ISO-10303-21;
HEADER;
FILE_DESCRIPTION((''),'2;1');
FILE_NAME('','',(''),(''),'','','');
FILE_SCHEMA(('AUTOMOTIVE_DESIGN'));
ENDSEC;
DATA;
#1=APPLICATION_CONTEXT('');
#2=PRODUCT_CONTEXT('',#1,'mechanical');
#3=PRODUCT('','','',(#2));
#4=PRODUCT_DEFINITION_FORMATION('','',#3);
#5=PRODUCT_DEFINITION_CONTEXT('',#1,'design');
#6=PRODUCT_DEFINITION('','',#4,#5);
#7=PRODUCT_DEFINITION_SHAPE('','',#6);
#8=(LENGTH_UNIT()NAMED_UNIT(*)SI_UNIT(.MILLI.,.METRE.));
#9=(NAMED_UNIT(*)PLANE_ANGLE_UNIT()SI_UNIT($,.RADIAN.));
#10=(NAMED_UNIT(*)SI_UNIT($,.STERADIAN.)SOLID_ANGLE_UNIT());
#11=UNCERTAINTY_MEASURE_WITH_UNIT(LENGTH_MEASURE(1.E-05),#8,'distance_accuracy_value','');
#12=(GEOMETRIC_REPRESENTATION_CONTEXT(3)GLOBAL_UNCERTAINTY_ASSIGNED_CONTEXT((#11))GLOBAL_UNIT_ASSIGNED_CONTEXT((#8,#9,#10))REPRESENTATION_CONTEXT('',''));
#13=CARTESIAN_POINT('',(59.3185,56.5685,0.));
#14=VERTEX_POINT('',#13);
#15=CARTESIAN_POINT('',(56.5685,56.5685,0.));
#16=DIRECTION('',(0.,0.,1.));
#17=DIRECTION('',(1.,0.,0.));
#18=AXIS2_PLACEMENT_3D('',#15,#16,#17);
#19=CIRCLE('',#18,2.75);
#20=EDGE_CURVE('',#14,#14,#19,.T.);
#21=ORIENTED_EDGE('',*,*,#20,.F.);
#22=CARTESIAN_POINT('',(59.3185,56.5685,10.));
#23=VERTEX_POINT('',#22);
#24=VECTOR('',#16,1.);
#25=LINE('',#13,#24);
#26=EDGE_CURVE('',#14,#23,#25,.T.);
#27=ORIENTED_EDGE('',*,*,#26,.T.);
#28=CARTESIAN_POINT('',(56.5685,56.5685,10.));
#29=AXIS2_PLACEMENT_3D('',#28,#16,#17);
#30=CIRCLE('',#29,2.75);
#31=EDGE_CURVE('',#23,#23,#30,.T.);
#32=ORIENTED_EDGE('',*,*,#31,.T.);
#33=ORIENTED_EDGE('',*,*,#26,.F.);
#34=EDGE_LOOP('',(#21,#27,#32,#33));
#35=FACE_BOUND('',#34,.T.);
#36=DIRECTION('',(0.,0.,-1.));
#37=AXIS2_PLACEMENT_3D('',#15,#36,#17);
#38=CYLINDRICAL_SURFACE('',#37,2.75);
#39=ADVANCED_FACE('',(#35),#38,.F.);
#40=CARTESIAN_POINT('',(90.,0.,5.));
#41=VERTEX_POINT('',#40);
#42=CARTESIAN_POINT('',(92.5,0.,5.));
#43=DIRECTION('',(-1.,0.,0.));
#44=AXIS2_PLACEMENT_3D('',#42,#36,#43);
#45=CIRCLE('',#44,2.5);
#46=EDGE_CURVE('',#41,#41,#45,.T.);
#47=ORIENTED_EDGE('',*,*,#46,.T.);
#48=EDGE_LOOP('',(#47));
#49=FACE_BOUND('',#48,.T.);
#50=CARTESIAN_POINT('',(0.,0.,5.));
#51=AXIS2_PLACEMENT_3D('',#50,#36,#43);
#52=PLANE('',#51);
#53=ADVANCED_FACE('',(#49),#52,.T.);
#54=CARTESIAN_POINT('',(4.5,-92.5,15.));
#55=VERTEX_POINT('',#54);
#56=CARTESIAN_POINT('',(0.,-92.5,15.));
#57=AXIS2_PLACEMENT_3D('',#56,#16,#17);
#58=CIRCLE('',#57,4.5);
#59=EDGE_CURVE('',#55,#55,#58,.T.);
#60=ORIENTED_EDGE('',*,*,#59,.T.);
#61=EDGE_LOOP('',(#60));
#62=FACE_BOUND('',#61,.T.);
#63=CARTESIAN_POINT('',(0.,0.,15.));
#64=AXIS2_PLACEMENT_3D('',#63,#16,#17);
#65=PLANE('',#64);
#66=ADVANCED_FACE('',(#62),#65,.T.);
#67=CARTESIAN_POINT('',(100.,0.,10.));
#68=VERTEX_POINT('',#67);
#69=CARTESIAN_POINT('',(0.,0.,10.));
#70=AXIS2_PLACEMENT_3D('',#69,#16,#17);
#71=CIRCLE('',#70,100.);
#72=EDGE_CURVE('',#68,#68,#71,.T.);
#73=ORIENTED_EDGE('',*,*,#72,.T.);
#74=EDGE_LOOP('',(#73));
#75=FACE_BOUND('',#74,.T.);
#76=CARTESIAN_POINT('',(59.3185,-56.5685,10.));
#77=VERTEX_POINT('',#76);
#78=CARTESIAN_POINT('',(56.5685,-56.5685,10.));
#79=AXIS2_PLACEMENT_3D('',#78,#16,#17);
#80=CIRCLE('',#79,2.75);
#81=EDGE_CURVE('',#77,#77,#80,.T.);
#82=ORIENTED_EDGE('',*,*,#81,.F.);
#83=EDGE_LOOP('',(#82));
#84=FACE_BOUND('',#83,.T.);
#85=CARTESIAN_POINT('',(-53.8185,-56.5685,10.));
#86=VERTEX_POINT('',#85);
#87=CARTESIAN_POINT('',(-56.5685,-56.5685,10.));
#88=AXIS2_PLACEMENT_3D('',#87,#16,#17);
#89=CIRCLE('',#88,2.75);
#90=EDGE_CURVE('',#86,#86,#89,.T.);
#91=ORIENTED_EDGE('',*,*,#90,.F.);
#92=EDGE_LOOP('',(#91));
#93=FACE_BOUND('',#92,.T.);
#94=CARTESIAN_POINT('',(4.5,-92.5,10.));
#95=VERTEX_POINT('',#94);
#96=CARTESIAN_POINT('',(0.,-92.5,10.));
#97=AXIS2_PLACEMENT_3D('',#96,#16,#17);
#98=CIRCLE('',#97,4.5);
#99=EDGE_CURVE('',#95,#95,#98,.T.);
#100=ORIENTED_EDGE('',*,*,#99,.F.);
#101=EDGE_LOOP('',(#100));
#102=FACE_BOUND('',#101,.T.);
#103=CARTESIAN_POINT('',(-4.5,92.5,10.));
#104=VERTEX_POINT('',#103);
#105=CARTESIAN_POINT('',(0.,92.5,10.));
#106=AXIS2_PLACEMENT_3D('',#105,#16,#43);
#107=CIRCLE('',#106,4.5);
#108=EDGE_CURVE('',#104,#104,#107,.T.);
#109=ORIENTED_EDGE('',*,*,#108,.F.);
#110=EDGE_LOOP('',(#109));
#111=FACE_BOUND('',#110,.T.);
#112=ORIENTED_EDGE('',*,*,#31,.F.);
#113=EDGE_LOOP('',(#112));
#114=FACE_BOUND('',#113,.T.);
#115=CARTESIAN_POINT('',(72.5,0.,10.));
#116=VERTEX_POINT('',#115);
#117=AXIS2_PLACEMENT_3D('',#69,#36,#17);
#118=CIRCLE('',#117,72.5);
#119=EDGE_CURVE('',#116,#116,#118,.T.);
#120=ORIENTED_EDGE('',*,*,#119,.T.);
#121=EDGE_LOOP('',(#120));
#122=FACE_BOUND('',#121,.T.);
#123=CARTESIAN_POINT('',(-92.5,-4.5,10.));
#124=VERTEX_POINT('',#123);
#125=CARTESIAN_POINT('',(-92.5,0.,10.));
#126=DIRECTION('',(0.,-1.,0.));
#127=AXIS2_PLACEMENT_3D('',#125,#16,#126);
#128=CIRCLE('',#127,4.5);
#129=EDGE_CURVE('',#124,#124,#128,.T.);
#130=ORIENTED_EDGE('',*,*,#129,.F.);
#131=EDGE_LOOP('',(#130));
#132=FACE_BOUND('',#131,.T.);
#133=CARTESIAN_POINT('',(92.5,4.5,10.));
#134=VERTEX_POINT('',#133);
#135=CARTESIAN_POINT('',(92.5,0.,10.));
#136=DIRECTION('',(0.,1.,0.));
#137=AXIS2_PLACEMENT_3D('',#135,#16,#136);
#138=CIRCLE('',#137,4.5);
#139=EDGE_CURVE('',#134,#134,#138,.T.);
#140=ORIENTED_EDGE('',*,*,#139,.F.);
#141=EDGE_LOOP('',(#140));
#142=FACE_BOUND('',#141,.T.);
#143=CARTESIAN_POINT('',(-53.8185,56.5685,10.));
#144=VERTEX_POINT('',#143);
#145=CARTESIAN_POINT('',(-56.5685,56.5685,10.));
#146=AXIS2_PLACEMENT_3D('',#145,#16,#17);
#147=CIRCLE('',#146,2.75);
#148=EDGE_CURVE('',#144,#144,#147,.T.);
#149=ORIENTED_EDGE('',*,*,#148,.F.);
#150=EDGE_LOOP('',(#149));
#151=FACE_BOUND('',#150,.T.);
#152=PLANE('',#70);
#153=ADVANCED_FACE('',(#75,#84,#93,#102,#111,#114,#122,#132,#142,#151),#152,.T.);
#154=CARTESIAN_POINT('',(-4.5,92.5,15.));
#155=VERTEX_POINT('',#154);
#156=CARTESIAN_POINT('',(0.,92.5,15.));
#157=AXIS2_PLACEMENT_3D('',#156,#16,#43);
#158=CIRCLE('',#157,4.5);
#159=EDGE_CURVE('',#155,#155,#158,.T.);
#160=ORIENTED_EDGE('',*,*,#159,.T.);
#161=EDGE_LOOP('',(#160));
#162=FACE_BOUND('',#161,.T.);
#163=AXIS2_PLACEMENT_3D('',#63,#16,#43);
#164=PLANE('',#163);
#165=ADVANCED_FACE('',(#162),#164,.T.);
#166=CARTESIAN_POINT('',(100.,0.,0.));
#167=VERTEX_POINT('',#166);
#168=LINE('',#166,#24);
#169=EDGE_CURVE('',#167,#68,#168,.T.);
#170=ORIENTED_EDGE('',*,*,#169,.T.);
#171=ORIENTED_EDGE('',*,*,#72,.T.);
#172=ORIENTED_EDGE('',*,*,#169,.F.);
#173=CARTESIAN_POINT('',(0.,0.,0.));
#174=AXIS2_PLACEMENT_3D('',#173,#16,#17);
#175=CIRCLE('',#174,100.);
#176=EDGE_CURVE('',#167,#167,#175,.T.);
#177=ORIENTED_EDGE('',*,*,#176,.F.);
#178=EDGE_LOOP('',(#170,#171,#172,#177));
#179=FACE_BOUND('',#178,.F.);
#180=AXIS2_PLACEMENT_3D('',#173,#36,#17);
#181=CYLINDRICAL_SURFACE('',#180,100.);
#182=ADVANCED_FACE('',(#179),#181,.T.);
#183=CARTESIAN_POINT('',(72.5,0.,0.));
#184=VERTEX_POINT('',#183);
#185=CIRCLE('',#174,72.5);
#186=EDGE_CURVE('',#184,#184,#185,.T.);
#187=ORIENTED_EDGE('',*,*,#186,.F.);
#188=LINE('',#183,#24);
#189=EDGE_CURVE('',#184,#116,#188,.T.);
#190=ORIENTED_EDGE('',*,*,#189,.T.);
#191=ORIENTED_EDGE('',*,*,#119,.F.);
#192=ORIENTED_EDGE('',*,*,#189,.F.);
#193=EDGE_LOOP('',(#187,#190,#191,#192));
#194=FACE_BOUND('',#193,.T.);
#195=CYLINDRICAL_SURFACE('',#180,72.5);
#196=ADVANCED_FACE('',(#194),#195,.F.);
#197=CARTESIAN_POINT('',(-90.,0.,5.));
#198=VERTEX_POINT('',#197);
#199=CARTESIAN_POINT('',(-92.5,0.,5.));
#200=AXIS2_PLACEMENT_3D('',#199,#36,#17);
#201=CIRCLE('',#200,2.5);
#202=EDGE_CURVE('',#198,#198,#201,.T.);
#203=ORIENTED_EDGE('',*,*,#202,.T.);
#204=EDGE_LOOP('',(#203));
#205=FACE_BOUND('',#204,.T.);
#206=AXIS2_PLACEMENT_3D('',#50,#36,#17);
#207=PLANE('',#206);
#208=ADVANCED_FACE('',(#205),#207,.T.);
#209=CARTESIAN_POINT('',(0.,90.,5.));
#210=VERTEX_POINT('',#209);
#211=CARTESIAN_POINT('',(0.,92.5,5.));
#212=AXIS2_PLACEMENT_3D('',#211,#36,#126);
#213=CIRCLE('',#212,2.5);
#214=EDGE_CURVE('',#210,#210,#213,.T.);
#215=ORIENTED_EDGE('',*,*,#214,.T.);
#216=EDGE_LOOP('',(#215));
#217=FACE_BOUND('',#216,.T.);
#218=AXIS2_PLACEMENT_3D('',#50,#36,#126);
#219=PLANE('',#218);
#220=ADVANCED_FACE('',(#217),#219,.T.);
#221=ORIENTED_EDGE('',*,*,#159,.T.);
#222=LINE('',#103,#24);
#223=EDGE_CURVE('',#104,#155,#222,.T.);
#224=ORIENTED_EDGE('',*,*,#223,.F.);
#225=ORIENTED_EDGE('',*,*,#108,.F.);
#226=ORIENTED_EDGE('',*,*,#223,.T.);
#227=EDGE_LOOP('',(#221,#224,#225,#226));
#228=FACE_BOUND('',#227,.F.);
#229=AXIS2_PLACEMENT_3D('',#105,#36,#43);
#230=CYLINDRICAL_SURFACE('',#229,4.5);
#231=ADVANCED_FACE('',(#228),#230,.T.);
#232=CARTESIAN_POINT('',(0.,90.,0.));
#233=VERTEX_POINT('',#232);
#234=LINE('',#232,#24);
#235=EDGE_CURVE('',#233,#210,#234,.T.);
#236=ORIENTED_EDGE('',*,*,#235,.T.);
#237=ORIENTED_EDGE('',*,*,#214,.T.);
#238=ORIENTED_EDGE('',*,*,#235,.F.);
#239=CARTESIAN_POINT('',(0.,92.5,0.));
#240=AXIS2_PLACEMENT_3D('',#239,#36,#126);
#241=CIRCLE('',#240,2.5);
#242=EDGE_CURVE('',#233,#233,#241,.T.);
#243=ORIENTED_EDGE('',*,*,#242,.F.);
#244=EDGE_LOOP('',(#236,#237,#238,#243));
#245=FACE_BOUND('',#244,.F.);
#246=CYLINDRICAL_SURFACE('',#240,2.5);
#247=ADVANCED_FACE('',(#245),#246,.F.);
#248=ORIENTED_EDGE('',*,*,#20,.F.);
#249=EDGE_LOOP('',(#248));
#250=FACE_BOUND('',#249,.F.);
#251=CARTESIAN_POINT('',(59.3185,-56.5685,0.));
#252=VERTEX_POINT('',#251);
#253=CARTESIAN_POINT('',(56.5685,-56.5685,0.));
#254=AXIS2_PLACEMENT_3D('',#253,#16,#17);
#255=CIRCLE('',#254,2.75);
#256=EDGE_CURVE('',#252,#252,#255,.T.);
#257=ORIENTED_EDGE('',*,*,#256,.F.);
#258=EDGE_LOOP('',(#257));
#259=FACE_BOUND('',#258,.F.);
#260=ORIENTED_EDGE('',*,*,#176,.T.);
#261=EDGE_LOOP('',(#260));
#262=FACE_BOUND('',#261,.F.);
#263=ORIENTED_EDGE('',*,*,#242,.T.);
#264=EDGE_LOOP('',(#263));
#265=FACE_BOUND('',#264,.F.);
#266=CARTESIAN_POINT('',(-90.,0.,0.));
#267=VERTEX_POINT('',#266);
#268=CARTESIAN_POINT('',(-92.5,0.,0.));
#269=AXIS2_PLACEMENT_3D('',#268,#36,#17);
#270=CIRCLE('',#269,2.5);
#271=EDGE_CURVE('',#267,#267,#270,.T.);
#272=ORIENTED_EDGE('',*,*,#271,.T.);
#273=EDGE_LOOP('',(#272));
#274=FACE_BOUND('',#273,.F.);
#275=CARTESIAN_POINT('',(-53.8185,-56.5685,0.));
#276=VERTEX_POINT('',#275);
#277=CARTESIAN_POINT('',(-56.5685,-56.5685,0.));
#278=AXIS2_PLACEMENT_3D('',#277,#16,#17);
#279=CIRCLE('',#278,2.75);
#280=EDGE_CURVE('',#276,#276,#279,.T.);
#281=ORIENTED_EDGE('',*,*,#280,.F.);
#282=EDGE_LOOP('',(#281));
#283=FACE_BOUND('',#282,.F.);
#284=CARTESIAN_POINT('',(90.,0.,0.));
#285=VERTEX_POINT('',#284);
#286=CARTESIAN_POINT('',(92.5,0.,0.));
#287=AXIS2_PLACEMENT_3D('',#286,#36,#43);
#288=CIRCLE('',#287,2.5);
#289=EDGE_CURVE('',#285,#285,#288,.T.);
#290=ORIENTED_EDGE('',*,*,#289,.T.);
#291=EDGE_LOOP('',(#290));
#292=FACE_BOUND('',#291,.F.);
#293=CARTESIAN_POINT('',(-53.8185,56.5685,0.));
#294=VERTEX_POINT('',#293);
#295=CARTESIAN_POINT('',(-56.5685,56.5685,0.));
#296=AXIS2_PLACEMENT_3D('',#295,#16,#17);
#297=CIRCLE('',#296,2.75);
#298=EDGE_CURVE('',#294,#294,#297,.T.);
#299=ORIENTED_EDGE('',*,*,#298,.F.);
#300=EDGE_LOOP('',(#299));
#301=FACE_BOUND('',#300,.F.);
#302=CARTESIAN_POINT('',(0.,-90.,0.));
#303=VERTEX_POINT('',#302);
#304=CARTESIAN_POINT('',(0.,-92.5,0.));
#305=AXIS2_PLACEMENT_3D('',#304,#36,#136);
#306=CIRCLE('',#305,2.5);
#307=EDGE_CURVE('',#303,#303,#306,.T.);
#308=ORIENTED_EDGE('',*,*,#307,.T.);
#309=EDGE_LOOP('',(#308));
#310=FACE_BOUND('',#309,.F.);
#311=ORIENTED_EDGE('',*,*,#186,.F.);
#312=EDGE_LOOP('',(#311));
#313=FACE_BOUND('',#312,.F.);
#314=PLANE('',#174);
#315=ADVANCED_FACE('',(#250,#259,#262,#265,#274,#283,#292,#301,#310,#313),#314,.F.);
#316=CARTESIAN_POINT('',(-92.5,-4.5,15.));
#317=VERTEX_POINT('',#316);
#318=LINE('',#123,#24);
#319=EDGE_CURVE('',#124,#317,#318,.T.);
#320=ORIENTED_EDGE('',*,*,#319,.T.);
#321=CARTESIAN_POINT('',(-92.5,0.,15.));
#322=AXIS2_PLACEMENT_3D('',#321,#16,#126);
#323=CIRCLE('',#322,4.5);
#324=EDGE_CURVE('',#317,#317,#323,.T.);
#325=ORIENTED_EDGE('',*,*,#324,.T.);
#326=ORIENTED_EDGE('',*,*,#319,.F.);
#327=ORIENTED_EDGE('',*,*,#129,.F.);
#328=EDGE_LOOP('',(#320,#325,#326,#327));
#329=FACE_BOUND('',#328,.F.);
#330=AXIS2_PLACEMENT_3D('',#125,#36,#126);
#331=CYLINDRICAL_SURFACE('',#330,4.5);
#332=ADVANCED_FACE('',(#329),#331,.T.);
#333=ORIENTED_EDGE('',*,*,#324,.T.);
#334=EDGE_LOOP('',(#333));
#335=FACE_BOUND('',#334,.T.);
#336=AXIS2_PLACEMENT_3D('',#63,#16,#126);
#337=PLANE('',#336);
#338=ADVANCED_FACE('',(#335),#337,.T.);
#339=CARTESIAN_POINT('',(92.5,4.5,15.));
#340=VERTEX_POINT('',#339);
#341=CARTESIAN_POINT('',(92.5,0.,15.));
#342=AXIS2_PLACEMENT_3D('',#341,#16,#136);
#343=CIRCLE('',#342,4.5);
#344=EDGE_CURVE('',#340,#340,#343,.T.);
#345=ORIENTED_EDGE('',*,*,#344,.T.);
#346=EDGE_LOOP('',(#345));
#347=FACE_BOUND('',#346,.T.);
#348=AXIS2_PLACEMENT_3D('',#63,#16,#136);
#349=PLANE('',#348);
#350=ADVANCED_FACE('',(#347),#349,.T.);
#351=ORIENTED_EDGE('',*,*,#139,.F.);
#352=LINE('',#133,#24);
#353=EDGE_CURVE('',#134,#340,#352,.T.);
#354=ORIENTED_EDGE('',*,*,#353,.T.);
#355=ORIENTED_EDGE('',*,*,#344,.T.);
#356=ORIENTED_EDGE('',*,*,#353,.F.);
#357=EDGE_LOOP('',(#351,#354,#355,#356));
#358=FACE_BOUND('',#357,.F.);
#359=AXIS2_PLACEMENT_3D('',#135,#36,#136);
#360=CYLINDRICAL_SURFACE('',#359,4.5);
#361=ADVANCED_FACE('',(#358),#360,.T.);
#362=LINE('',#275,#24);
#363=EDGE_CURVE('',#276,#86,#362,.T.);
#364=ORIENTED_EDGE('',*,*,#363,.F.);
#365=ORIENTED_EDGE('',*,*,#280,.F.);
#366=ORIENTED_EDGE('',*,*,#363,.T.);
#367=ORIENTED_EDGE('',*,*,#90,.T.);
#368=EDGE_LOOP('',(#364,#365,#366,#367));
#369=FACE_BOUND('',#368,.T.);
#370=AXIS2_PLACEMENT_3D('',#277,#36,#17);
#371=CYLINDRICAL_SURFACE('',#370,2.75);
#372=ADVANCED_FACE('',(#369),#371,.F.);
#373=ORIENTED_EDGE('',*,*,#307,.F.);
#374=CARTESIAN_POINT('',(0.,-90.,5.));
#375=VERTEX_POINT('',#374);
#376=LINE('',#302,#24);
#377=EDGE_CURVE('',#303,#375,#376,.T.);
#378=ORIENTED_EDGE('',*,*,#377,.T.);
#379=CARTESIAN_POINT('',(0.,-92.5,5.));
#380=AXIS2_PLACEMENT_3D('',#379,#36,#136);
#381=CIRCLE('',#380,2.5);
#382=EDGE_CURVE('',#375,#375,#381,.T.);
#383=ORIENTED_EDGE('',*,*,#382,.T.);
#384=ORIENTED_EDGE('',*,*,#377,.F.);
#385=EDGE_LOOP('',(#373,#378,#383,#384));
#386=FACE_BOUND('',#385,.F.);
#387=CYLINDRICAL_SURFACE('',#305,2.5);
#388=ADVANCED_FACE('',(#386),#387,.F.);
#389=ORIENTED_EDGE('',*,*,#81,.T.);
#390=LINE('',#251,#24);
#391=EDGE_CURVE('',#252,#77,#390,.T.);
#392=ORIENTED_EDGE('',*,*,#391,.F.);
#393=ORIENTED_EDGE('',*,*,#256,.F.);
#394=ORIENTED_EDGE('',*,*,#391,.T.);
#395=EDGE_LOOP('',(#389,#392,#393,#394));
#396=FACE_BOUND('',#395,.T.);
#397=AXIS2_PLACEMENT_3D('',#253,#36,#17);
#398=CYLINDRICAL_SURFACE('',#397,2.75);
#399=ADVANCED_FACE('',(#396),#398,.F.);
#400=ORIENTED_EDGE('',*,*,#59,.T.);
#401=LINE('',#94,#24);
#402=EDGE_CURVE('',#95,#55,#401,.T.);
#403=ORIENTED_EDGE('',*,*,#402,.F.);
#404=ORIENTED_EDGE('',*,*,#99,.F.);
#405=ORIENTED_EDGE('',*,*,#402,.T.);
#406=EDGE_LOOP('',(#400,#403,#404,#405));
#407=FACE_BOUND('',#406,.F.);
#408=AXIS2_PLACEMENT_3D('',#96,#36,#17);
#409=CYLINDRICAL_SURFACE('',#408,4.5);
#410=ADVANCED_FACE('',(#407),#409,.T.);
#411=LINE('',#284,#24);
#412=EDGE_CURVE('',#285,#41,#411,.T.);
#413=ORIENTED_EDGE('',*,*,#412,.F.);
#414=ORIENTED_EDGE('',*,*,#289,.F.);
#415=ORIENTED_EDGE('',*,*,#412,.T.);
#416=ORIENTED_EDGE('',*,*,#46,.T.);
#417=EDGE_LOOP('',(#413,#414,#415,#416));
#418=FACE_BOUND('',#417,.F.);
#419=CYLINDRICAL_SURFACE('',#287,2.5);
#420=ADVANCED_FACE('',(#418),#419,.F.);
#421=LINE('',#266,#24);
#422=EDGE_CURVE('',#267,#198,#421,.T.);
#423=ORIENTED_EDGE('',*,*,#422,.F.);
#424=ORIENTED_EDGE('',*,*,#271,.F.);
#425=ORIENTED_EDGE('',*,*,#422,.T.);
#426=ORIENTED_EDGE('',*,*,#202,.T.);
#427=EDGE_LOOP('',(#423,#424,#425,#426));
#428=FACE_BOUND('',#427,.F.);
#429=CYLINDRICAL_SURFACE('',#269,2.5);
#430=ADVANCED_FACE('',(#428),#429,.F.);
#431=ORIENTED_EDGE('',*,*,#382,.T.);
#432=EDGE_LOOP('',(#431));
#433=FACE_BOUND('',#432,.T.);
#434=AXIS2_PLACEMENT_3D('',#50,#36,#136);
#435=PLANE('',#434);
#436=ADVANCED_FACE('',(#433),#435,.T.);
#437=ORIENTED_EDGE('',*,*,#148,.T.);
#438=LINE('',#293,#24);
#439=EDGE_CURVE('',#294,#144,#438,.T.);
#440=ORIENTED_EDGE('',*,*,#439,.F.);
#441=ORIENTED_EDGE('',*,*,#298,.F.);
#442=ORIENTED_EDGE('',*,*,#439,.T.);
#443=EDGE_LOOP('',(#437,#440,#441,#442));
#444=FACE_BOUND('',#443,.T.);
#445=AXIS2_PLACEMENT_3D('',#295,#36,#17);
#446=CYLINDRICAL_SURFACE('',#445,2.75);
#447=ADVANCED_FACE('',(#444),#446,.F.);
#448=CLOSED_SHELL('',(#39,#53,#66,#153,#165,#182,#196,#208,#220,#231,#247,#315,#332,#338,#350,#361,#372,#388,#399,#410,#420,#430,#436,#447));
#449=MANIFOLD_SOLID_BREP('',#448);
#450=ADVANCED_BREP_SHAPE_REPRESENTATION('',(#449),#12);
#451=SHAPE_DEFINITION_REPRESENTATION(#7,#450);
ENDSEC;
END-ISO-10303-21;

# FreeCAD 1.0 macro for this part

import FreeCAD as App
import Part
import Sketcher

V = App.Vector

doc = App.newDocument("Part")
body = doc.addObject("PartDesign::Body", "Body")

sketch1 = body.newObject("Sketcher::SketchObject", "Sketch")
sketch1.AttachmentSupport = (doc.getObject("XY_Plane"), [""])
sketch1.MapMode = "FlatFace"
sketch1.addGeometry([
    Part.Circle(V(0, 0, 0), V(0, 0, 1), 100),
    Part.Circle(V(-56.6, -56.6, 0), V(0, 0, 1), 2.8),
    Part.Circle(V(56.6, -56.6, 0), V(0, 0, 1), 2.8),
    Part.Circle(V(-56.6, 56.6, 0), V(0, 0, 1), 2.8),
    Part.Circle(V(0, 0, 0), V(0, 0, 1), 72.5),
    Part.Circle(V(56.6, 56.6, 0), V(0, 0, 1), 2.8),
], False)
sketch1.addConstraint([
    Sketcher.Constraint("Coincident", 0, 3, -1, 1),
    Sketcher.Constraint("Coincident", 4, 3, -1, 1),
    Sketcher.Constraint("Equal", 1, 2),
    Sketcher.Constraint("Equal", 2, 3),
    Sketcher.Constraint("Equal", 3, 5),
    Sketcher.Constraint("Symmetric", 2, 3, 3, 3, -1, 1),
    Sketcher.Constraint("Symmetric", 1, 3, 5, 3, -1, 1),
    Sketcher.Constraint("Symmetric", 1, 3, 2, 3, -2),
    Sketcher.Constraint("Diameter", 0, 200.0),
    Sketcher.Constraint("Diameter", 4, 145.0),
    Sketcher.Constraint("Diameter", 1, 5.5),
    Sketcher.Constraint("DistanceX", 1, 3, 2, 3, 113.137),
    Sketcher.Constraint("DistanceY", 1, 3, 3, 3, 113.137),
])
pad1 = body.newObject("PartDesign::Pad", "Pad")
pad1.Profile = sketch1
pad1.Length = 10

sketch2 = body.newObject("Sketcher::SketchObject", "Sketch001")
sketch2.AttachmentSupport = (doc.getObject("XY_Plane"), [""])
sketch2.MapMode = "FlatFace"
sketch2.AttachmentOffset = App.Placement(V(0, 0, 10), App.Rotation())
sketch2.addGeometry(Part.Circle(V(0, -92.5, 0), V(0, 0, 1), 4.5), False)
sketch2.addConstraint([
    Sketcher.Constraint("PointOnObject", 0, 3, -2),
    Sketcher.Constraint("Diameter", 0, 9.0),
    Sketcher.Constraint("DistanceY", 0, 3, -1, 1, 92.5),
])
pad2 = body.newObject("PartDesign::Pad", "Pad001")
pad2.Profile = sketch2
pad2.Length = 5
doc.recompute()

polarpattern = body.newObject("PartDesign::PolarPattern", "PolarPattern")
polarpattern.Originals = [pad2]
polarpattern.Axis = (doc.getObject("Z_Axis"), [""])
polarpattern.Angle = 360
polarpattern.Occurrences = 4
body.Tip = polarpattern

sketch3 = body.newObject("Sketcher::SketchObject", "Sketch002")
sketch3.AttachmentSupport = (doc.getObject("XY_Plane"), [""])
sketch3.MapMode = "FlatFace"
sketch3.addGeometry(Part.Circle(V(92.5, 0, 0), V(0, 0, 1), 2.5), False)
sketch3.addConstraint([
    Sketcher.Constraint("PointOnObject", 0, 3, -1),
    Sketcher.Constraint("Diameter", 0, 5.0),
    Sketcher.Constraint("DistanceX", -1, 1, 0, 3, 92.5),
])
pocket1 = body.newObject("PartDesign::Pocket", "Pocket")
pocket1.Profile = sketch3
pocket1.Length = 5
pocket1.Reversed = True
doc.recompute()

polarpattern2 = body.newObject("PartDesign::PolarPattern", "PolarPattern001")
polarpattern2.Originals = [pocket1]
polarpattern2.Axis = (doc.getObject("Z_Axis"), [""])
polarpattern2.Angle = 360
polarpattern2.Occurrences = 4
body.Tip = polarpattern2

doc.recompute()
